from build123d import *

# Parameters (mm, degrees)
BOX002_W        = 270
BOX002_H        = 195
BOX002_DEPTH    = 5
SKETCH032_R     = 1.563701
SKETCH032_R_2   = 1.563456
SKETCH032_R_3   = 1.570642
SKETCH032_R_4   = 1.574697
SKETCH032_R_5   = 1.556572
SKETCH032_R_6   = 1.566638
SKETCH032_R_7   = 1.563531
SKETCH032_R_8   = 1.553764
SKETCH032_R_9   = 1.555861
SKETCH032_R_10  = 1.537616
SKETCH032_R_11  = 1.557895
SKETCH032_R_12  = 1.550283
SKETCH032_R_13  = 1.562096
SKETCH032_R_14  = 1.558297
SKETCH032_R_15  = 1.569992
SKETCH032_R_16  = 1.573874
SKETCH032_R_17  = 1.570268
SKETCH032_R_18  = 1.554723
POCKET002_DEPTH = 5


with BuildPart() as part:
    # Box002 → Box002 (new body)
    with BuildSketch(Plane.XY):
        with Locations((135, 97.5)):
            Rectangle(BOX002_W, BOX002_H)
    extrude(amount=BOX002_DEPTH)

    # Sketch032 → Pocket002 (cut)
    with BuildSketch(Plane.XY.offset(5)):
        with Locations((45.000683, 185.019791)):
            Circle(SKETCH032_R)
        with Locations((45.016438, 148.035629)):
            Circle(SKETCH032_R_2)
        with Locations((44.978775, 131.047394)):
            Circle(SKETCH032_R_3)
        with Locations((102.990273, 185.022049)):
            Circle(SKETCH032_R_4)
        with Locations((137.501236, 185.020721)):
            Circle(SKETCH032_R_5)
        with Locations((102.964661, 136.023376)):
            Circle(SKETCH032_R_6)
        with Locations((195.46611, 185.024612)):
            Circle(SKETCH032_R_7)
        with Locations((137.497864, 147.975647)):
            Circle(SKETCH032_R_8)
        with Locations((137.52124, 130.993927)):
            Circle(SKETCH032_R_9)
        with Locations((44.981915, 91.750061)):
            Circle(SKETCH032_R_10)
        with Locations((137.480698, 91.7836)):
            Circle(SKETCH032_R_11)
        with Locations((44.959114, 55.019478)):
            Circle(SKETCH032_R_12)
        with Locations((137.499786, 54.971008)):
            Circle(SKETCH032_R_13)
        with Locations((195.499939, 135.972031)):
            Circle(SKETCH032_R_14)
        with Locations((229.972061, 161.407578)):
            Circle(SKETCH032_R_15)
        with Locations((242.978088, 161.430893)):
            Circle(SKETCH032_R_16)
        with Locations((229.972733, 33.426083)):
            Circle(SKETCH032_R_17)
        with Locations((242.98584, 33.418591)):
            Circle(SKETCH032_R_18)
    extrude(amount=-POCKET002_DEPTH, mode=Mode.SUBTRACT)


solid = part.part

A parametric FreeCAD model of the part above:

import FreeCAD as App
import Part
import Sketcher
from FreeCAD import Vector
Q = App.Units.Quantity

doc = App.newDocument("Part")
body = doc.addObject("PartDesign::Body", "Body")

sketch1 = doc.addObject("Sketcher::SketchObject", "Sketch")
body.addObject(sketch1)
sketch1.AttachmentSupport = (doc.XY_Plane, [""])
sketch1.MapMode = "FlatFace"
sketch1.addGeometry([
    Part.LineSegment(Vector(0, 195, 0), Vector(0, 0, 0)),
    Part.LineSegment(Vector(0, 0, 0), Vector(270, 0, 0)),
    Part.LineSegment(Vector(270, 0, 0), Vector(270, 195, 0)),
    Part.LineSegment(Vector(270, 195, 0), Vector(0, 195, 0)),
], False)
sketch1.addConstraint([
    Sketcher.Constraint("Coincident", 0, 2, 1, 1),
    Sketcher.Constraint("Coincident", 1, 2, 2, 1),
    Sketcher.Constraint("Coincident", 2, 2, 3, 1),
    Sketcher.Constraint("Coincident", 3, 2, 0, 1),
    Sketcher.Constraint("Vertical", 0),
    Sketcher.Constraint("Horizontal", 1),
    Sketcher.Constraint("Vertical", 2),
    Sketcher.Constraint("Horizontal", 3),
    Sketcher.Constraint("Coincident", 0, 2, -1, 1),
    Sketcher.Constraint("DistanceX", 1, 1, 1, 2, Q("270 mm")),
    Sketcher.Constraint("DistanceY", 0, 2, 0, 1, Q("195 mm")),
])
pad1 = doc.addObject("PartDesign::Pad", "Pad")
body.addObject(pad1)
pad1.Profile = sketch1
pad1.Length = 5

sketch2 = doc.addObject("Sketcher::SketchObject", "Sketch001")
body.addObject(sketch2)
sketch2.AttachmentSupport = (doc.XY_Plane, [""])
sketch2.MapMode = "FlatFace"
sketch2.AttachmentOffset = App.Placement(Vector(0, 0, 5), App.Rotation())
sketch2.addGeometry([
    Part.Circle(Vector(45.000683, 185.019791, 0), Vector(0, 0, 1), 1.563701),
    Part.Circle(Vector(45.016438, 148.035629, 0), Vector(0, 0, 1), 1.563456),
    Part.Circle(Vector(44.978775, 131.047394, 0), Vector(0, 0, 1), 1.570642),
    Part.Circle(Vector(102.990273, 185.022049, 0), Vector(0, 0, 1), 1.574697),
    Part.Circle(Vector(137.501236, 185.020721, 0), Vector(0, 0, 1), 1.556572),
    Part.Circle(Vector(102.964661, 136.023376, 0), Vector(0, 0, 1), 1.566638),
    Part.Circle(Vector(195.46611, 185.024612, 0), Vector(0, 0, 1), 1.563531),
    Part.Circle(Vector(137.497864, 147.975647, 0), Vector(0, 0, 1), 1.553764),
    Part.Circle(Vector(137.52124, 130.993927, 0), Vector(0, 0, 1), 1.555861),
    Part.Circle(Vector(44.981915, 91.750061, 0), Vector(0, 0, 1), 1.537616),
    Part.Circle(Vector(137.480698, 91.7836, 0), Vector(0, 0, 1), 1.557895),
    Part.Circle(Vector(44.959114, 55.019478, 0), Vector(0, 0, 1), 1.550283),
    Part.Circle(Vector(137.499786, 54.971008, 0), Vector(0, 0, 1), 1.562096),
    Part.Circle(Vector(195.499939, 135.972031, 0), Vector(0, 0, 1), 1.558297),
    Part.Circle(Vector(229.972061, 161.407578, 0), Vector(0, 0, 1), 1.569992),
    Part.Circle(Vector(242.978088, 161.430893, 0), Vector(0, 0, 1), 1.573874),
    Part.Circle(Vector(229.972733, 33.426083, 0), Vector(0, 0, 1), 1.570268),
    Part.Circle(Vector(242.98584, 33.418591, 0), Vector(0, 0, 1), 1.554723),
], False)
sketch2.addConstraint([
    Sketcher.Constraint("Diameter", 0, Q("3.127402 mm")),
    Sketcher.Constraint("Diameter", 1, Q("3.126912 mm")),
    Sketcher.Constraint("Diameter", 6, Q("3.127062 mm")),
    Sketcher.Constraint("Diameter", 8, Q("3.111722 mm")),
    Sketcher.Constraint("Diameter", 10, Q("3.11579 mm")),
    Sketcher.Constraint("Diameter", 12, Q("3.124192 mm")),
    Sketcher.Constraint("Diameter", 15, Q("3.147748 mm")),
    Sketcher.Constraint("Diameter", 2, Q("3.141284 mm")),
    Sketcher.Constraint("Diameter", 3, Q("3.149394 mm")),
    Sketcher.Constraint("Diameter", 4, Q("3.113144 mm")),
    Sketcher.Constraint("Diameter", 5, Q("3.133276 mm")),
    Sketcher.Constraint("Diameter", 7, Q("3.107528 mm")),
    Sketcher.Constraint("Diameter", 9, Q("3.075232 mm")),
    Sketcher.Constraint("Diameter", 11, Q("3.100566 mm")),
    Sketcher.Constraint("Diameter", 13, Q("3.116594 mm")),
    Sketcher.Constraint("Diameter", 14, Q("3.139984 mm")),
    Sketcher.Constraint("Diameter", 16, Q("3.140536 mm")),
    Sketcher.Constraint("Diameter", 17, Q("3.109446 mm")),
    Sketcher.Constraint("DistanceY", -1, 1, 10, 3, Q("91.7836 mm")),
    Sketcher.Constraint("DistanceX", 2, 3, 3, 3, Q("58.011498 mm")),
    Sketcher.Constraint("DistanceX", 1, 3, 4, 3, Q("92.484798 mm")),
    Sketcher.Constraint("DistanceX", 11, 3, 9, 3, Q("0.022801 mm")),
    Sketcher.Constraint("DistanceY", 11, 3, 5, 3, Q("81.003898 mm")),
    Sketcher.Constraint("DistanceX", 8, 3, 13, 3, Q("57.978699 mm")),
    Sketcher.Constraint("DistanceX", 13, 3, 17, 3, Q("47.485901 mm")),
    Sketcher.Constraint("DistanceY", 17, 3, 15, 3, Q("128.012302 mm")),
    Sketcher.Constraint("DistanceY", -1, 1, 0, 3, Q("185.019791 mm")),
    Sketcher.Constraint("DistanceY", -1, 1, 1, 3, Q("148.035629 mm")),
    Sketcher.Constraint("DistanceY", -1, 1, 3, 3, Q("185.022049 mm")),
    Sketcher.Constraint("DistanceY", -1, 1, 4, 3, Q("185.020721 mm")),
    Sketcher.Constraint("DistanceX", -1, 1, 5, 3, Q("102.964661 mm")),
    Sketcher.Constraint("DistanceX", -1, 1, 6, 3, Q("195.46611 mm")),
    Sketcher.Constraint("DistanceY", -1, 1, 6, 3, Q("185.024612 mm")),
    Sketcher.Constraint("DistanceX", -1, 1, 8, 3, Q("137.52124 mm")),
    Sketcher.Constraint("DistanceY", -1, 1, 9, 3, Q("91.750061 mm")),
    Sketcher.Constraint("DistanceY", -1, 1, 13, 3, Q("135.972031 mm")),
    Sketcher.Constraint("DistanceX", -1, 1, 14, 3, Q("229.972061 mm")),
    Sketcher.Constraint("DistanceY", -1, 1, 14, 3, Q("161.407578 mm")),
    Sketcher.Constraint("DistanceX", -1, 1, 15, 3, Q("242.978088 mm")),
    Sketcher.Constraint("DistanceY", -1, 1, 17, 3, Q("33.418591 mm")),
    Sketcher.Constraint("DistanceX", 2, 3, 0, 3, Q("0.021908 mm")),
    Sketcher.Constraint("DistanceX", 2, 3, 4, 3, Q("92.522461 mm")),
    Sketcher.Constraint("DistanceX", 5, 3, 3, 3, Q("0.025612 mm")),
    Sketcher.Constraint("DistanceY", 5, 3, 7, 3, Q("11.952271 mm")),
    Sketcher.Constraint("DistanceX", 3, 3, 7, 3, Q("34.507591 mm")),
    Sketcher.Constraint("DistanceY", 7, 3, 1, 3, Q("0.059982 mm")),
    Sketcher.Constraint("DistanceY", 8, 3, 7, 3, Q("16.98172 mm")),
    Sketcher.Constraint("DistanceX", 2, 3, 9, 3, Q("0.00314 mm")),
    Sketcher.Constraint("DistanceX", 10, 3, 4, 3, Q("0.020538 mm")),
    Sketcher.Constraint("DistanceX", 10, 3, 12, 3, Q("0.019088 mm")),
    Sketcher.Constraint("DistanceY", 12, 3, 8, 3, Q("76.022919 mm")),
    Sketcher.Constraint("DistanceY", 16, 3, 15, 3, Q("128.00481 mm")),
    Sketcher.Constraint("DistanceY", -1, 1, 2, 3, Q("131.047394 mm")),
    Sketcher.Constraint("DistanceX", -1, 1, 16, 3, Q("229.972733 mm")),
])
pocket1 = doc.addObject("PartDesign::Pocket", "Pocket")
body.addObject(pocket1)
pocket1.Profile = sketch2
pocket1.Length = 5

doc.recompute()
